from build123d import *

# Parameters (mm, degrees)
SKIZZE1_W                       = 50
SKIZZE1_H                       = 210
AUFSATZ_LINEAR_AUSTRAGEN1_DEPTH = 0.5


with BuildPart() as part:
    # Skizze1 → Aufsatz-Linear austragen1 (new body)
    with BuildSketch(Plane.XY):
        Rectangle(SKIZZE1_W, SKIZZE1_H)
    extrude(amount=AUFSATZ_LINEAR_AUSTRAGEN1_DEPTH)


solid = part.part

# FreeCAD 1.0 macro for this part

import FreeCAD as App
import Part
import Sketcher

V = App.Vector
Q = App.Units.Quantity

doc = App.newDocument("Part")
params = doc.addObject("Spreadsheet::Sheet", "Params")
for row, (alias, value) in enumerate([
    ("sketch1_width", "50 mm"),
    ("sketch1_height", "210 mm"),
    ("pad1_length", "0.5 mm"),
], start=1):
    params.set(f"A{row}", alias)
    params.set(f"B{row}", "=" + value)
    params.setAlias(f"B{row}", alias)

body = doc.addObject("PartDesign::Body", "Body")

sketch1 = body.newObject("Sketcher::SketchObject", "Sketch")
sketch1.AttachmentSupport = (doc.getObject("XY_Plane"), [""])
sketch1.MapMode = "FlatFace"
sketch1.addGeometry(Part.LineSegment(V(-25, 105, 0), V(-25, -105, 0)), False)
sketch1.addGeometry(Part.LineSegment(V(-25, -105, 0), V(25, -105, 0)), False)
sketch1.addGeometry(Part.LineSegment(V(25, -105, 0), V(25, 105, 0)), False)
sketch1.addGeometry(Part.LineSegment(V(25, 105, 0), V(-25, 105, 0)), False)
sketch1.addConstraint(Sketcher.Constraint("Coincident", 0, 2, 1, 1))
sketch1.addConstraint(Sketcher.Constraint("Coincident", 1, 2, 2, 1))
sketch1.addConstraint(Sketcher.Constraint("Coincident", 2, 2, 3, 1))
sketch1.addConstraint(Sketcher.Constraint("Coincident", 3, 2, 0, 1))
sketch1.addConstraint(Sketcher.Constraint("Vertical", 0))
sketch1.addConstraint(Sketcher.Constraint("Horizontal", 1))
sketch1.addConstraint(Sketcher.Constraint("Vertical", 2))
sketch1.addConstraint(Sketcher.Constraint("Horizontal", 3))
sketch1.addConstraint(Sketcher.Constraint("Symmetric", 0, 2, 2, 2, -1, 1))
sketch1.addConstraint(Sketcher.Constraint("DistanceX", 1, 1, 1, 2, Q("50 mm")))
sketch1.addConstraint(Sketcher.Constraint("DistanceY", 0, 2, 0, 1, Q("210 mm")))
sketch1.setExpression("Constraints[9]", "Params.sketch1_width")
sketch1.setExpression("Constraints[10]", "Params.sketch1_height")
pad1 = body.newObject("PartDesign::Pad", "Pad")
pad1.Profile = sketch1
pad1.setExpression("Length", "Params.pad1_length")

doc.recompute()
